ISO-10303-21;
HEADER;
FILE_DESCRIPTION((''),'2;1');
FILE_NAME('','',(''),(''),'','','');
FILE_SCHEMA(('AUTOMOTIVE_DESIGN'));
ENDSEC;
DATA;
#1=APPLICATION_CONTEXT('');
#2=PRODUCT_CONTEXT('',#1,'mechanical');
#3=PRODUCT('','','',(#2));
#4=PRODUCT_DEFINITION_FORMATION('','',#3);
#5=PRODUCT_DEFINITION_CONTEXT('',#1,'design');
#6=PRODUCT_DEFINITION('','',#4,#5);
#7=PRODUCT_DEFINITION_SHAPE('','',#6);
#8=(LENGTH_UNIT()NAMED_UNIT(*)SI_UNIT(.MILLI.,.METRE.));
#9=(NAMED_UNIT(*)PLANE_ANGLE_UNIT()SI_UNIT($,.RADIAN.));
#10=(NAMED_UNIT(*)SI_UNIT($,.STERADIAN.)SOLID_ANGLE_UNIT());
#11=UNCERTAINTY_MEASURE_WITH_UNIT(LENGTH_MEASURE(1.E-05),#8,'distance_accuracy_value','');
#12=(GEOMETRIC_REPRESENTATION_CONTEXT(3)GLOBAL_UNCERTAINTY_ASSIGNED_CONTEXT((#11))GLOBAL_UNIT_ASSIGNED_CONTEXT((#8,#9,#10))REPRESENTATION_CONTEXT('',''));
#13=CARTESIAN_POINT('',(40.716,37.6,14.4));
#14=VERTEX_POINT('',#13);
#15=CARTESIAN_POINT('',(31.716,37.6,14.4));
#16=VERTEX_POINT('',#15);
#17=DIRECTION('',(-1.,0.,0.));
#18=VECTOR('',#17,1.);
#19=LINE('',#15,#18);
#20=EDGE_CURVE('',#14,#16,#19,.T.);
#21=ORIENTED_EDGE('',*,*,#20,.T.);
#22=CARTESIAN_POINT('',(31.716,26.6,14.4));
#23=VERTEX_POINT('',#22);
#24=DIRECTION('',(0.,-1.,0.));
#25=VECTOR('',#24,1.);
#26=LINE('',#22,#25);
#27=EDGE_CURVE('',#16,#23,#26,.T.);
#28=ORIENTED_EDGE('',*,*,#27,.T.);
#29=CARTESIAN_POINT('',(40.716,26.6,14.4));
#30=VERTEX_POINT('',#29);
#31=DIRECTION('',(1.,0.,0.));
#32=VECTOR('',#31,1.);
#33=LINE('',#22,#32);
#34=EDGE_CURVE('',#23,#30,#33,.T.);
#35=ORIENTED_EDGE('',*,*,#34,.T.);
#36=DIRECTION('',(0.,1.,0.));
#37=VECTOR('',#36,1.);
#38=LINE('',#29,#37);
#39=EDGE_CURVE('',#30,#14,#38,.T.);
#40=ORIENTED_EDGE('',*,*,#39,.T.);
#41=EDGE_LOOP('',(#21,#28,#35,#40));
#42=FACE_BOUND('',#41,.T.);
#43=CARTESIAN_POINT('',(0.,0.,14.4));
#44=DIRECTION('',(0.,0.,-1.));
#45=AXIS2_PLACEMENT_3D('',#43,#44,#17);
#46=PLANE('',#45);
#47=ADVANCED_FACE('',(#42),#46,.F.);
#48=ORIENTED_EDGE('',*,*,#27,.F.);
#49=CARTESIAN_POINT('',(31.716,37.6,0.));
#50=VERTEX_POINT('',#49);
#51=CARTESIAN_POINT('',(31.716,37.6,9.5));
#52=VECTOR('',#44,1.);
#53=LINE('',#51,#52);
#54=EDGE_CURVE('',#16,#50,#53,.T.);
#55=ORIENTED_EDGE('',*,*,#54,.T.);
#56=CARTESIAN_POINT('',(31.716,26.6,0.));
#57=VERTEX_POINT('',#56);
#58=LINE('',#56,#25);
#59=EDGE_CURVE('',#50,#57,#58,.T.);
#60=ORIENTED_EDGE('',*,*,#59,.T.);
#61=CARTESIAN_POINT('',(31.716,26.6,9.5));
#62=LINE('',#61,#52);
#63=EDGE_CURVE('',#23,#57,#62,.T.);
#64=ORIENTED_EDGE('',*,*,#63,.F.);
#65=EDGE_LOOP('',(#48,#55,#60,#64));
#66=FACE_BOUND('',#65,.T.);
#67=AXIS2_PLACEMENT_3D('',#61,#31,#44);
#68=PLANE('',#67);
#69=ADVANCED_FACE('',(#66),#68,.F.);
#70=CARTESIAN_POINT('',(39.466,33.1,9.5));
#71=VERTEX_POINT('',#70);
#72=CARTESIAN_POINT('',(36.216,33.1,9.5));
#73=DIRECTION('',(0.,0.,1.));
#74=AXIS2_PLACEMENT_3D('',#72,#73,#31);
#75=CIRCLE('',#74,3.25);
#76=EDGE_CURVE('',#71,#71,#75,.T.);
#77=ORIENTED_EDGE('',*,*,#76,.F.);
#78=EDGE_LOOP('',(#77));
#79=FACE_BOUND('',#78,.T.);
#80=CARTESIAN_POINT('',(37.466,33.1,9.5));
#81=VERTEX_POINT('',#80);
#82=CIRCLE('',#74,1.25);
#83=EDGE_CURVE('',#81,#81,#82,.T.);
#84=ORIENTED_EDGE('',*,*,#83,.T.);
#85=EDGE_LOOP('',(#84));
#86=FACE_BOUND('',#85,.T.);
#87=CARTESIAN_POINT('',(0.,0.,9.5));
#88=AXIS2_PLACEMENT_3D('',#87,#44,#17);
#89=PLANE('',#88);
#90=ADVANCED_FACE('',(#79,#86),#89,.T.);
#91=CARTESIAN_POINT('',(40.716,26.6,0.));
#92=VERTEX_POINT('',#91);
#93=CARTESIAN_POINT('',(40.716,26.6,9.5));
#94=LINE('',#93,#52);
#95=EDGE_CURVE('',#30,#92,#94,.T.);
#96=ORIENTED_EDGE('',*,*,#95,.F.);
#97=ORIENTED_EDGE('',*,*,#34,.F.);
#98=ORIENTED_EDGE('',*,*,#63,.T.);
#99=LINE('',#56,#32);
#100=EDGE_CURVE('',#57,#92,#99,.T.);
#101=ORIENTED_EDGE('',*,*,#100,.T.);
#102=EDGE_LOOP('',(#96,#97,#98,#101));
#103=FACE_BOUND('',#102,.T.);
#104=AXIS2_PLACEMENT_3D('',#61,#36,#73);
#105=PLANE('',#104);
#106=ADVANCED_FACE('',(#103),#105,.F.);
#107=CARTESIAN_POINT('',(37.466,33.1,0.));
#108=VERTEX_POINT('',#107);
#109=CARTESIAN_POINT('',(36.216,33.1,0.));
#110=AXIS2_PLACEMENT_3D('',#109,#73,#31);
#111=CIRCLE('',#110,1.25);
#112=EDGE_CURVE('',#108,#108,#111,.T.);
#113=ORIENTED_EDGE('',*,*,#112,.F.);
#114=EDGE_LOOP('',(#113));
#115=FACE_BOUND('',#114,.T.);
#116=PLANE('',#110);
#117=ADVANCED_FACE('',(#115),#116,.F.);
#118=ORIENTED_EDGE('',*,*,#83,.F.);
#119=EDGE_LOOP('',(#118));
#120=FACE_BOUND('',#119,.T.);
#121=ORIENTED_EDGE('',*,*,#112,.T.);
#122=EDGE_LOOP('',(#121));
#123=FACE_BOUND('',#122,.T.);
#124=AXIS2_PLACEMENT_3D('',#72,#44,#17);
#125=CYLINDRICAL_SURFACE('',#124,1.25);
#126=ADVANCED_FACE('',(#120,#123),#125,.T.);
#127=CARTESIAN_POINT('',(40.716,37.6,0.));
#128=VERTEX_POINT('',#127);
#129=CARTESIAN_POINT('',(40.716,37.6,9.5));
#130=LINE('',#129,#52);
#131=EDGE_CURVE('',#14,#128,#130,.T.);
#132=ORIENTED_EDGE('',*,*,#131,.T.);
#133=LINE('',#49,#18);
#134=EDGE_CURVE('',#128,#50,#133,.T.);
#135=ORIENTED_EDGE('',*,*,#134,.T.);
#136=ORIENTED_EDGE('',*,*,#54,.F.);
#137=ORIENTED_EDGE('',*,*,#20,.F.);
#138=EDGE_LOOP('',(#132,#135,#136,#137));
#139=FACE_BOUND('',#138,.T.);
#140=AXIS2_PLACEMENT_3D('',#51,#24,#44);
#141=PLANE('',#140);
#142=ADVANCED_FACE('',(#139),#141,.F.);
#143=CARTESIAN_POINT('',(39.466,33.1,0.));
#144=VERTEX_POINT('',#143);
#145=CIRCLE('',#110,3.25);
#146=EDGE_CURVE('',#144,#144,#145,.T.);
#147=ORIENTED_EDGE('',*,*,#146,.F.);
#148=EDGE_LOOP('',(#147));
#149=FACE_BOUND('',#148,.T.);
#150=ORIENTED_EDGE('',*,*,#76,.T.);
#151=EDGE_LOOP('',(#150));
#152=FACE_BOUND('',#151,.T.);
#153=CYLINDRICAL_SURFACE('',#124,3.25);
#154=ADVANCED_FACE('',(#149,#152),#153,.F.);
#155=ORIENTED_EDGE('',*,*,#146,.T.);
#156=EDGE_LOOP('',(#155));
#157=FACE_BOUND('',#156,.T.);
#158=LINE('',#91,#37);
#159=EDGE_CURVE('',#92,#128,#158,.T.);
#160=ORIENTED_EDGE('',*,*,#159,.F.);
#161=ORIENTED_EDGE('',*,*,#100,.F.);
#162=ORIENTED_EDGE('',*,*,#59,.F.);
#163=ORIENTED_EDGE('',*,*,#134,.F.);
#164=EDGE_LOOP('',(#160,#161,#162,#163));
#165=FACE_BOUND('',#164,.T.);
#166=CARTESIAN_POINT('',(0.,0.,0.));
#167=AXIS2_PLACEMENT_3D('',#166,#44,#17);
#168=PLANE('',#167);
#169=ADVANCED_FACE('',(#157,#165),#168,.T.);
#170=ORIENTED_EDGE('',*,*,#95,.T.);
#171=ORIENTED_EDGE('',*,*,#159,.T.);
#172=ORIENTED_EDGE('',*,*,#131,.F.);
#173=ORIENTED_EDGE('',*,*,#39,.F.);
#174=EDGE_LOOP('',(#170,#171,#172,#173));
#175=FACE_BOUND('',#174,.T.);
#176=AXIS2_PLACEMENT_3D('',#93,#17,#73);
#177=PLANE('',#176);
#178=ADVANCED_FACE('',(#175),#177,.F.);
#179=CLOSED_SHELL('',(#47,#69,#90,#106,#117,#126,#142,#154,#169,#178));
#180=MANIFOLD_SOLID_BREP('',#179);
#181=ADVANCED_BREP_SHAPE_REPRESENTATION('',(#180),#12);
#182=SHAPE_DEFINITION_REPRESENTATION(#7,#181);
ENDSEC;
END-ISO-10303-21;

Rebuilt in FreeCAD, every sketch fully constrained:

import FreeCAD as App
import Part
import Sketcher
from FreeCAD import Vector


def add_polygon(sketch, points):
    """Adds a closed chain of lines whose ends are joined by coincident constraints."""
    first, n = sketch.GeometryCount, len(points)
    for a, b in zip(points, points[1:] + points[:1]):
        sketch.addGeometry(Part.LineSegment(App.Vector(*a, 0), App.Vector(*b, 0)), False)
    for i in range(n):
        sketch.addConstraint(Sketcher.Constraint("Coincident", first + i, 2, first + (i + 1) % n, 1))

doc = App.newDocument("Part")
params = doc.addObject("Spreadsheet::Sheet", "Params")
for row, (alias, value) in enumerate([
    ("sketch1_diameter", "6.5 mm"),
    ("sketch1_width", "9 mm"),
    ("sketch1_height", "11 mm"),
    ("pad1_length", "9.5 mm"),
    ("sketch2_width", "9 mm"),
    ("sketch2_height", "11 mm"),
    ("pad2_length", "4.9 mm"),
    ("sketch3_diameter", "2.5 mm"),
    ("pad3_length", "9.5 mm"),
], start=1):
    params.set(f"A{row}", alias)
    params.set(f"B{row}", "=" + value)
    params.setAlias(f"B{row}", alias)

body = doc.addObject("PartDesign::Body", "Body")

sketch1 = body.newObject("Sketcher::SketchObject", "Sketch")
sketch1.AttachmentSupport = (doc.getObject("XY_Plane"), [""])
sketch1.MapMode = "FlatFace"
add_polygon(sketch1, [(31.7, 37.6), (31.7, 26.6), (40.7, 26.6), (40.7, 37.6)])
sketch1.addGeometry(Part.Circle(Vector(36.2, 33.1, 0), Vector(0, 0, 1), 3.2), False)
sketch1.addConstraint([
    Sketcher.Constraint("Vertical", 0),
    Sketcher.Constraint("Horizontal", 1),
    Sketcher.Constraint("Vertical", 2),
    Sketcher.Constraint("Horizontal", 3),
    Sketcher.Constraint("Diameter", 4, 6.5),
    Sketcher.Constraint("DistanceX", 1, 1, 1, 2, 9.0),
    Sketcher.Constraint("DistanceY", 0, 2, 0, 1, 11.0),
    Sketcher.Constraint("DistanceY", -1, 1, 4, 3, 33.1),
    Sketcher.Constraint("DistanceY", -1, 1, 0, 2, 26.6),
    Sketcher.Constraint("DistanceX", 0, 2, 4, 3, 4.5),
    Sketcher.Constraint("DistanceX", -1, 1, 4, 3, 36.216),
])
sketch1.setExpression("Constraints[8]", "Params.sketch1_diameter")
sketch1.setExpression("Constraints[9]", "Params.sketch1_width")
sketch1.setExpression("Constraints[10]", "Params.sketch1_height")
pad1 = body.newObject("PartDesign::Pad", "Pad")
pad1.Profile = sketch1
pad1.setExpression("Length", "Params.pad1_length")

sketch2 = body.newObject("Sketcher::SketchObject", "Sketch001")
sketch2.AttachmentSupport = (doc.getObject("XY_Plane"), [""])
sketch2.MapMode = "FlatFace"
sketch2.AttachmentOffset = App.Placement(Vector(0, 0, 9.5), App.Rotation())
add_polygon(sketch2, [(32, 38), (32, 27), (41, 27), (41, 38)])
sketch2.addConstraint([
    Sketcher.Constraint("Vertical", 0),
    Sketcher.Constraint("Horizontal", 1),
    Sketcher.Constraint("Vertical", 2),
    Sketcher.Constraint("Horizontal", 3),
    Sketcher.Constraint("DistanceX", 1, 1, 1, 2, 9.0),
    Sketcher.Constraint("DistanceY", 0, 2, 0, 1, 11.0),
    Sketcher.Constraint("DistanceY", -1, 1, 0, 2, 26.6),
    Sketcher.Constraint("DistanceX", -1, 1, 0, 2, 31.716),
])
sketch2.setExpression("Constraints[8]", "Params.sketch2_width")
sketch2.setExpression("Constraints[9]", "Params.sketch2_height")
pad2 = body.newObject("PartDesign::Pad", "Pad001")
pad2.Profile = sketch2
pad2.setExpression("Length", "Params.pad2_length")

sketch3 = body.newObject("Sketcher::SketchObject", "Sketch002")
sketch3.AttachmentSupport = (doc.getObject("XY_Plane"), [""])
sketch3.MapMode = "FlatFace"
sketch3.addGeometry(Part.Circle(Vector(36.2, 33.1, 0), Vector(0, 0, 1), 1.2), False)
sketch3.addConstraint([
    Sketcher.Constraint("Diameter", 0, 2.5),
    Sketcher.Constraint("DistanceY", -1, 1, 0, 3, 33.1),
    Sketcher.Constraint("DistanceX", -1, 1, 0, 3, 36.216),
])
sketch3.setExpression("Constraints[0]", "Params.sketch3_diameter")
pad3 = body.newObject("PartDesign::Pad", "Pad002")
pad3.Profile = sketch3
pad3.setExpression("Length", "Params.pad3_length")

doc.recompute()
